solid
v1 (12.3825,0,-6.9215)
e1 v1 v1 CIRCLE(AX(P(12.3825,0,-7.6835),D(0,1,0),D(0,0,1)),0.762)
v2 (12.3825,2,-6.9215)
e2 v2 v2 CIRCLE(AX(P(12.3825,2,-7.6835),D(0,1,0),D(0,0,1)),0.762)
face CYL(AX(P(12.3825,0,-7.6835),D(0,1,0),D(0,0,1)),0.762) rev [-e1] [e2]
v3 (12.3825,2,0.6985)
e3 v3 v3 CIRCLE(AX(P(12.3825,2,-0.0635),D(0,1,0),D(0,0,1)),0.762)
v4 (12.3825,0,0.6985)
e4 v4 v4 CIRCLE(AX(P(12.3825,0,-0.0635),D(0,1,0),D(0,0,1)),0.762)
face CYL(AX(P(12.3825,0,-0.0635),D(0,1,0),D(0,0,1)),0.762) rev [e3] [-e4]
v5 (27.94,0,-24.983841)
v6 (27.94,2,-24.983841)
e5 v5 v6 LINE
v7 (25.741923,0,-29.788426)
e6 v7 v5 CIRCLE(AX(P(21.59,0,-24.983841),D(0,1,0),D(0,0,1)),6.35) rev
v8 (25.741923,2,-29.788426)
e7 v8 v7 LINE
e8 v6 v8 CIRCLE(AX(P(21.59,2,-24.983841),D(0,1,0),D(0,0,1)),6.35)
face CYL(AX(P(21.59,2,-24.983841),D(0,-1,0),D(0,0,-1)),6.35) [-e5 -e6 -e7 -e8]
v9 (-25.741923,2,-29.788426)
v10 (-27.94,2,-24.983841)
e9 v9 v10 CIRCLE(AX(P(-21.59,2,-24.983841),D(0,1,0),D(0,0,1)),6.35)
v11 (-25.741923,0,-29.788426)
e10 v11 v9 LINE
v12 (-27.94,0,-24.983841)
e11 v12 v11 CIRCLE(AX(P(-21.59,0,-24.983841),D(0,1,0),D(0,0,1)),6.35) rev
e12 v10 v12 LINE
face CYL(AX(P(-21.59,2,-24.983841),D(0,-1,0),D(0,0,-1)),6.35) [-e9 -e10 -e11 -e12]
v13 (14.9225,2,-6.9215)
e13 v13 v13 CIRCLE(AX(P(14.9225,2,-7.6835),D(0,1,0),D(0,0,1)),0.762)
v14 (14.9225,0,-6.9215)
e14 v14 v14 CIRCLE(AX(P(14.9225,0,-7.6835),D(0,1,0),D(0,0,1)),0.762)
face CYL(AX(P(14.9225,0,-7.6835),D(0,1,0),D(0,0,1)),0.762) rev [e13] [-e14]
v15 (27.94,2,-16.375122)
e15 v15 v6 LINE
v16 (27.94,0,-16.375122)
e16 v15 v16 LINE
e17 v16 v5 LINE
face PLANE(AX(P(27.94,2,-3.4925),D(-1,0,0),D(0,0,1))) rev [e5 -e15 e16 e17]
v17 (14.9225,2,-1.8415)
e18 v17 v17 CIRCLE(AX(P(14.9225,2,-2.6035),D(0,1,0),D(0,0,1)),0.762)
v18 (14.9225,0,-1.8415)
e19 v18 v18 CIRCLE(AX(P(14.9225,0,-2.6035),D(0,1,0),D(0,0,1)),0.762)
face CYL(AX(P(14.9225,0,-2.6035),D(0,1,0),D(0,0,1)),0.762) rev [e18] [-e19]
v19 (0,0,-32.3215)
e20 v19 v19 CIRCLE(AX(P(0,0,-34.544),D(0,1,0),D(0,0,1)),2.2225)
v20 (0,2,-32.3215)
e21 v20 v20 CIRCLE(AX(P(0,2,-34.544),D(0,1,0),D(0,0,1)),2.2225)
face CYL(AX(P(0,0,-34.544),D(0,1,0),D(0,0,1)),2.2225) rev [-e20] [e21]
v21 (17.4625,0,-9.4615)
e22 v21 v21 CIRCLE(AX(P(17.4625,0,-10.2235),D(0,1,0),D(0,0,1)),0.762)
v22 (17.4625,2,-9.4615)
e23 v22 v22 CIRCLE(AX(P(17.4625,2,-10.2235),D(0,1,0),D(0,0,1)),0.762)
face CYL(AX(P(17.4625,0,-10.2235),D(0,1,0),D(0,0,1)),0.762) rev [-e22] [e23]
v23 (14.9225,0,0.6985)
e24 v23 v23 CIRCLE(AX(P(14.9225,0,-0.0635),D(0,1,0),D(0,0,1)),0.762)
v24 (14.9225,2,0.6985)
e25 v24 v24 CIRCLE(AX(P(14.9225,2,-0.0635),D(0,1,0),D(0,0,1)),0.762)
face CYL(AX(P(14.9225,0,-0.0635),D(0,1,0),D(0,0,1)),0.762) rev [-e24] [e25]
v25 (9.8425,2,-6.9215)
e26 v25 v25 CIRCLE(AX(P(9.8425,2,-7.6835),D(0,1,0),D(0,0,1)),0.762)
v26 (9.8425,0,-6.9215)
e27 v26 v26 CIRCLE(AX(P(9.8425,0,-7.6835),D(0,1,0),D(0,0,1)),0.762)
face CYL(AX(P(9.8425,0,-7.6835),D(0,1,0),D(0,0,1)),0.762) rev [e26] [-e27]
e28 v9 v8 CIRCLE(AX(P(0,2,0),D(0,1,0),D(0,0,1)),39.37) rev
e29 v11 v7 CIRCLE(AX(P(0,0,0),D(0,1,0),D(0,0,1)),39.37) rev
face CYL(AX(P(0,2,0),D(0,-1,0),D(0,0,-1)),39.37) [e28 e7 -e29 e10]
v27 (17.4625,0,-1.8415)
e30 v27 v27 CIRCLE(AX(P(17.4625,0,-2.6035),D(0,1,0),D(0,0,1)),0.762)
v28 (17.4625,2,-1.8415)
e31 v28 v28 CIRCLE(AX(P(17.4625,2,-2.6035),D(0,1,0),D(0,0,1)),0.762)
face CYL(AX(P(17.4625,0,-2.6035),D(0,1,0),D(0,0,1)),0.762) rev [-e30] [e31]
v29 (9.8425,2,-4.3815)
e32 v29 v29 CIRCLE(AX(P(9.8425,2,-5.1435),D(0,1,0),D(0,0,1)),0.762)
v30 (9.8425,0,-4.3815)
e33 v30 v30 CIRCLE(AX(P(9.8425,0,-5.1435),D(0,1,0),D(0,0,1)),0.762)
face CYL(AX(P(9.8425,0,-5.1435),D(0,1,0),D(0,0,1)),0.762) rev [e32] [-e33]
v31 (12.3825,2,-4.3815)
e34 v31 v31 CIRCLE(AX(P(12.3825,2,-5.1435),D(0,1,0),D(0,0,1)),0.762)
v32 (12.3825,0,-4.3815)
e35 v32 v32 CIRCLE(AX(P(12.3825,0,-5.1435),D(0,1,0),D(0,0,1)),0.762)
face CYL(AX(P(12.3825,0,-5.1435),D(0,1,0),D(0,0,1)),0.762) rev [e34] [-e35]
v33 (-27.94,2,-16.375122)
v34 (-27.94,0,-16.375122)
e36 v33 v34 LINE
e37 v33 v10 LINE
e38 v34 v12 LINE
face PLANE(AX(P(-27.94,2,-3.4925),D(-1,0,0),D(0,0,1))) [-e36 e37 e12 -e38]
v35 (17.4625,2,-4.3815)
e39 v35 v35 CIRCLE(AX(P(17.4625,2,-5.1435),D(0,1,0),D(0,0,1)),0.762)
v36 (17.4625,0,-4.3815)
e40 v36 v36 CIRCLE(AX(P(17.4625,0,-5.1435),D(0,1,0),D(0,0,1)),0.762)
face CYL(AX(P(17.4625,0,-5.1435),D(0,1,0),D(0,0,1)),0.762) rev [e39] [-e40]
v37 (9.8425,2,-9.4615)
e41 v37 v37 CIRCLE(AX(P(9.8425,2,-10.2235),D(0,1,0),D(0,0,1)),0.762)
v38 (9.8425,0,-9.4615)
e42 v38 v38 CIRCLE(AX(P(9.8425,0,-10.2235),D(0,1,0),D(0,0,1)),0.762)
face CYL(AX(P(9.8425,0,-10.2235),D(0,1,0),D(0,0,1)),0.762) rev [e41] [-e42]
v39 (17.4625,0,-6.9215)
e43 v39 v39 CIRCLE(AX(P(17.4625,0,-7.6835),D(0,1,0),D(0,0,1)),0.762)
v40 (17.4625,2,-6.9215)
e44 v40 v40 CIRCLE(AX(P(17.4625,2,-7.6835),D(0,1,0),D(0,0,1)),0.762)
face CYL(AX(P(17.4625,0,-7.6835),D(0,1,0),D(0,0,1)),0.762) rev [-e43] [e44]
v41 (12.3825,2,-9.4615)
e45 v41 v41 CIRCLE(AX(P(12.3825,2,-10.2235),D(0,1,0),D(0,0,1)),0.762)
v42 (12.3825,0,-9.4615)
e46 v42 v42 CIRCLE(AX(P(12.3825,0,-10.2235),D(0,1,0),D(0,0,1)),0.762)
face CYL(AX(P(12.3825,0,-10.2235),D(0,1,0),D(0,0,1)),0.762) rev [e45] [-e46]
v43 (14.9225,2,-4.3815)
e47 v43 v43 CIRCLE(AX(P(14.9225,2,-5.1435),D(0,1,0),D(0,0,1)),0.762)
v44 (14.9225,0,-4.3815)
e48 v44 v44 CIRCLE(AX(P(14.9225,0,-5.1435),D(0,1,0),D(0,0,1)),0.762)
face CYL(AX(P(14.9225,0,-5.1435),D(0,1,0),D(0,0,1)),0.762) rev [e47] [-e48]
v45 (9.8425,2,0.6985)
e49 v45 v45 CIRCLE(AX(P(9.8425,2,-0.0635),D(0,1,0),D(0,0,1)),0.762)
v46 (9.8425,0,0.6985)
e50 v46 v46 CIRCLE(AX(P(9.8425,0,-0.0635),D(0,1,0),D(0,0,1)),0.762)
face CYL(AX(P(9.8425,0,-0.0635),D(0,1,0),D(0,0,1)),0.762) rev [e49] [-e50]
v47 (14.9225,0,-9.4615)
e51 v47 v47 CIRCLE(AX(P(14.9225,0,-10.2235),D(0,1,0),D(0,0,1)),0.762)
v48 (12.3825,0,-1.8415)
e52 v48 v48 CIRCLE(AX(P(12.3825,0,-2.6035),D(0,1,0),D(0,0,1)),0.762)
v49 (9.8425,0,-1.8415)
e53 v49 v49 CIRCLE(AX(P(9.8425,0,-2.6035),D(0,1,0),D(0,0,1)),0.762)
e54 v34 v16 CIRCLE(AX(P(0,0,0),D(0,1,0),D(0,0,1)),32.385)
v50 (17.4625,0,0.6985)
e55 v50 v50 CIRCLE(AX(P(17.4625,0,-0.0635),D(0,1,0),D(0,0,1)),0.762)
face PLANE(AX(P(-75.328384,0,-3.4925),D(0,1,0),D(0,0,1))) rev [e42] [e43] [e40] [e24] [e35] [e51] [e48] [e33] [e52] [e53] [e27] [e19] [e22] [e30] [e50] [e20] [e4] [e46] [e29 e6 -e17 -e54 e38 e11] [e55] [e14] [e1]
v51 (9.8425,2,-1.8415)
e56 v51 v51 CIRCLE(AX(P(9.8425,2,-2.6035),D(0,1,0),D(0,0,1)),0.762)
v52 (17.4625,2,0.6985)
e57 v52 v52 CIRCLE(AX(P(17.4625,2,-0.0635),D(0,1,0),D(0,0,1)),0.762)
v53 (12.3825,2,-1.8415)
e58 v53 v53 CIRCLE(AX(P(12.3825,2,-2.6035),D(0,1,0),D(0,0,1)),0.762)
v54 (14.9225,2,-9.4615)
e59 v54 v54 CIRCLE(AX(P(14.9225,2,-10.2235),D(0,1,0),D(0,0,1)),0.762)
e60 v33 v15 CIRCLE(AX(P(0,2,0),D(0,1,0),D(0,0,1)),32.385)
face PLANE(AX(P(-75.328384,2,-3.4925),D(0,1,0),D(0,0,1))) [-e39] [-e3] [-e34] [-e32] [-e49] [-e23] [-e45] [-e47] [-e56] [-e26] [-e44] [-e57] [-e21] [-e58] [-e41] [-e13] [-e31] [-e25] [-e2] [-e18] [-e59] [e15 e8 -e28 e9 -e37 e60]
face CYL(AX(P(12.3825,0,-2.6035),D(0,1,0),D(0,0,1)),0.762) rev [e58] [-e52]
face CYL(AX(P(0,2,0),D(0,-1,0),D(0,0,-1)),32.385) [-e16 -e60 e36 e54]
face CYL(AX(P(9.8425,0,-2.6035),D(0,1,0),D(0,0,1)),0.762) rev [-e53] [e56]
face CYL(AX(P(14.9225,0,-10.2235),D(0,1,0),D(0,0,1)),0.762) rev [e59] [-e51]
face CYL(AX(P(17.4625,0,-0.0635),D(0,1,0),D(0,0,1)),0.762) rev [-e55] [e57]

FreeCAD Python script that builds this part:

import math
import FreeCAD as App
import Part
import Sketcher
from FreeCAD import Vector
Q = App.Units.Quantity


def edges_at(feature, points):
    """Names of the edges that pass closest to the given points."""
    edges = feature.Shape.Edges
    near = lambda p: min(range(len(edges)), key=lambda i: edges[i].distToShape(Part.Vertex(*p))[0])
    return sorted({f"Edge{near(p) + 1}" for p in points})

doc = App.newDocument("Part")
params = doc.addObject("Spreadsheet::Sheet", "Params")
for row, (alias, value) in enumerate([
    ("sketch1_radius", "1.55 in"),
    ("sketch1_radius2", "1.275 in"),
    ("pad1_length", "2 mm"),
    ("fillet_radius", "0.25 in"),
    ("sketch2_diameter", "0.175 in"),
    ("sketch3_diameter", "0.06 in"),
], start=1):
    params.set(f"A{row}", alias)
    params.set(f"B{row}", "=" + value)
    params.setAlias(f"B{row}", alias)

body = doc.addObject("PartDesign::Body", "Body")

# Sketch on XZ plane
sketch1 = body.newObject("Sketcher::SketchObject", "Sketch")
sketch1.AttachmentSupport = (doc.getObject("XZ_Plane"), [""])
sketch1.MapMode = "FlatFace"
sketch1.addGeometry([
    Part.LineSegment(Vector(27.94, -16.375122, 0), Vector(27.94, -27.737219, 0)),
    Part.ArcOfCircle(Part.Circle(Vector(0, 0, 0), Vector(0, 0, 1), 39.37), math.radians(-135.208675), math.radians(-44.791325)),
    Part.LineSegment(Vector(-27.94, -27.737219, 0), Vector(-27.94, -16.375122, 0)),
    Part.ArcOfCircle(Part.Circle(Vector(0, 0, 0), Vector(0, 0, 1), 32.385), math.radians(-30.373786), math.radians(210.373786)),
], False)
sketch1.addConstraint([
    Sketcher.Constraint("Coincident", 0, 2, 1, 2),
    Sketcher.Constraint("Coincident", 1, 1, 2, 1),
    Sketcher.Constraint("Coincident", 2, 2, 3, 2),
    Sketcher.Constraint("Coincident", 3, 1, 0, 1),
    Sketcher.Constraint("Vertical", 0),
    Sketcher.Constraint("Vertical", 2),
    Sketcher.Constraint("Coincident", 1, 3, -1, 1),
    Sketcher.Constraint("Coincident", 3, 3, -1, 1),
    Sketcher.Constraint("Horizontal", 0, 2, 1, 1),
    Sketcher.Constraint("Radius", 1, Q("1.55 in")),
    Sketcher.Constraint("Radius", 3, Q("1.275 in")),
    Sketcher.Constraint("DistanceX", -1, 1, 0, 2, Q("1.1 in")),
])
sketch1.setExpression("Constraints[9]", "Params.sketch1_radius")
sketch1.setExpression("Constraints[10]", "Params.sketch1_radius2")
pad1 = body.newObject("PartDesign::Pad", "Pad")
pad1.Profile = sketch1
pad1.setExpression("Length", "Params.pad1_length")
pad1.Reversed = True
doc.recompute()

fillet = body.newObject("PartDesign::Fillet", "Fillet")
fillet.Base = (pad1, edges_at(pad1, [(-27.94, 1, -27.737), (27.94, 1, -27.737)]))
fillet.setExpression("Radius", "Params.fillet_radius")

# Sketch on XZ plane
sketch2 = body.newObject("Sketcher::SketchObject", "Sketch001")
sketch2.AttachmentSupport = (doc.getObject("XZ_Plane"), [""])
sketch2.MapMode = "FlatFace"
sketch2.AttachmentOffset = App.Placement(Vector(0, 0, -2), App.Rotation())
sketch2.addGeometry(Part.Circle(Vector(0, -34.544, 0), Vector(0, 0, 1), 2.2225), False)
sketch2.addConstraint([
    Sketcher.Constraint("PointOnObject", 0, 3, -2),
    Sketcher.Constraint("Diameter", 0, Q("0.175 in")),
    Sketcher.Constraint("DistanceY", 0, 3, -1, 1, Q("1.36 in")),
])
sketch2.setExpression("Constraints[1]", "Params.sketch2_diameter")
pocket1 = body.newObject("PartDesign::Pocket", "Pocket")
pocket1.Profile = sketch2
pocket1.Type = "ThroughAll"
pocket1.Reversed = True

# Sketch on XZ plane
sketch3 = body.newObject("Sketcher::SketchObject", "Sketch002")
sketch3.AttachmentSupport = (doc.getObject("XZ_Plane"), [""])
sketch3.MapMode = "FlatFace"
sketch3.AttachmentOffset = App.Placement(Vector(0, 0, -2), App.Rotation())
sketch3.addGeometry([
    Part.Circle(Vector(9.8425, -10.2235, 0), Vector(0, 0, 1), 0.762),  # 0
    Part.Circle(Vector(12.3825, -10.2235, 0), Vector(0, 0, 1), 0.762),  # 1
    Part.Circle(Vector(14.9225, -10.2235, 0), Vector(0, 0, 1), 0.762),  # 2
    Part.Circle(Vector(17.4625, -10.2235, 0), Vector(0, 0, 1), 0.762),  # 3
    Part.Circle(Vector(9.8425, -7.6835, 0), Vector(0, 0, 1), 0.762),  # 4
    Part.Circle(Vector(12.3825, -7.6835, 0), Vector(0, 0, 1), 0.762),  # 5
    Part.Circle(Vector(14.9225, -7.6835, 0), Vector(0, 0, 1), 0.762),  # 6
    Part.Circle(Vector(17.4625, -7.6835, 0), Vector(0, 0, 1), 0.762),  # 7
    Part.Circle(Vector(9.8425, -5.1435, 0), Vector(0, 0, 1), 0.762),  # 8
    Part.Circle(Vector(12.3825, -5.1435, 0), Vector(0, 0, 1), 0.762),  # 9
    Part.Circle(Vector(14.9225, -5.1435, 0), Vector(0, 0, 1), 0.762),  # 10
    Part.Circle(Vector(17.4625, -5.1435, 0), Vector(0, 0, 1), 0.762),  # 11
    Part.Circle(Vector(9.8425, -2.6035, 0), Vector(0, 0, 1), 0.762),  # 12
    Part.Circle(Vector(12.3825, -2.6035, 0), Vector(0, 0, 1), 0.762),  # 13
    Part.Circle(Vector(14.9225, -2.6035, 0), Vector(0, 0, 1), 0.762),  # 14
    Part.Circle(Vector(17.4625, -2.6035, 0), Vector(0, 0, 1), 0.762),  # 15
    Part.Circle(Vector(9.8425, -0.0635, 0), Vector(0, 0, 1), 0.762),  # 16
    Part.Circle(Vector(12.3825, -0.0635, 0), Vector(0, 0, 1), 0.762),  # 17
    Part.Circle(Vector(14.9225, -0.0635, 0), Vector(0, 0, 1), 0.762),  # 18
    Part.Circle(Vector(17.4625, -0.0635, 0), Vector(0, 0, 1), 0.762),  # 19
], False)
sketch3.addConstraint([
    Sketcher.Constraint("Equal", 0, 1),
    Sketcher.Constraint("Equal", 1, 2),
    Sketcher.Constraint("Equal", 2, 3),
    Sketcher.Constraint("Equal", 3, 4),
    Sketcher.Constraint("Equal", 4, 5),
    Sketcher.Constraint("Equal", 5, 6),
    Sketcher.Constraint("Equal", 6, 7),
    Sketcher.Constraint("Equal", 7, 8),
    Sketcher.Constraint("Equal", 8, 9),
    Sketcher.Constraint("Equal", 9, 10),
    Sketcher.Constraint("Equal", 10, 11),
    Sketcher.Constraint("Equal", 11, 12),
    Sketcher.Constraint("Equal", 12, 13),
    Sketcher.Constraint("Equal", 13, 14),
    Sketcher.Constraint("Equal", 14, 15),
    Sketcher.Constraint("Equal", 15, 16),
    Sketcher.Constraint("Equal", 16, 17),
    Sketcher.Constraint("Equal", 17, 18),
    Sketcher.Constraint("Equal", 18, 19),
    Sketcher.Constraint("Horizontal", 0, 3, 1, 3),
    Sketcher.Constraint("Horizontal", 1, 3, 2, 3),
    Sketcher.Constraint("Horizontal", 2, 3, 3, 3),
    Sketcher.Constraint("Horizontal", 4, 3, 5, 3),
    Sketcher.Constraint("Horizontal", 5, 3, 6, 3),
    Sketcher.Constraint("Horizontal", 6, 3, 7, 3),
    Sketcher.Constraint("Horizontal", 8, 3, 9, 3),
    Sketcher.Constraint("Horizontal", 9, 3, 10, 3),
    Sketcher.Constraint("Horizontal", 10, 3, 11, 3),
    Sketcher.Constraint("Horizontal", 12, 3, 13, 3),
    Sketcher.Constraint("Horizontal", 13, 3, 14, 3),
    Sketcher.Constraint("Horizontal", 14, 3, 15, 3),
    Sketcher.Constraint("Horizontal", 16, 3, 17, 3),
    Sketcher.Constraint("Horizontal", 17, 3, 18, 3),
    Sketcher.Constraint("Horizontal", 18, 3, 19, 3),
    Sketcher.Constraint("Vertical", 0, 3, 4, 3),
    Sketcher.Constraint("Vertical", 1, 3, 5, 3),
    Sketcher.Constraint("Vertical", 2, 3, 6, 3),
    Sketcher.Constraint("Vertical", 3, 3, 7, 3),
    Sketcher.Constraint("Vertical", 4, 3, 8, 3),
    Sketcher.Constraint("Vertical", 5, 3, 9, 3),
    Sketcher.Constraint("Vertical", 6, 3, 10, 3),
    Sketcher.Constraint("Vertical", 7, 3, 11, 3),
    Sketcher.Constraint("Vertical", 8, 3, 12, 3),
    Sketcher.Constraint("Vertical", 9, 3, 13, 3),
    Sketcher.Constraint("Vertical", 10, 3, 14, 3),
    Sketcher.Constraint("Vertical", 11, 3, 15, 3),
    Sketcher.Constraint("Vertical", 12, 3, 16, 3),
    Sketcher.Constraint("Vertical", 13, 3, 17, 3),
    Sketcher.Constraint("Vertical", 14, 3, 18, 3),
    Sketcher.Constraint("Vertical", 15, 3, 19, 3),
    Sketcher.Constraint("Diameter", 0, Q("0.06 in")),
    Sketcher.Constraint("DistanceX", 0, 3, 1, 3, Q("0.1 in")),
    Sketcher.Constraint("DistanceX", 1, 3, 2, 3, Q("0.1 in")),
    Sketcher.Constraint("DistanceX", 2, 3, 3, 3, Q("0.1 in")),
    Sketcher.Constraint("DistanceY", 0, 3, 4, 3, Q("0.1 in")),
    Sketcher.Constraint("DistanceY", 4, 3, 8, 3, Q("0.1 in")),
    Sketcher.Constraint("DistanceY", 8, 3, 12, 3, Q("0.1 in")),
    Sketcher.Constraint("DistanceY", 12, 3, 16, 3, Q("0.1 in")),
    Sketcher.Constraint("DistanceX", -1, 1, 3, 3, Q("0.6875 in")),
    Sketcher.Constraint("DistanceY", 0, 3, -1, 1, Q("0.4025 in")),
])
sketch3.setExpression("Constraints[50]", "Params.sketch3_diameter")
pocket2 = body.newObject("PartDesign::Pocket", "Pocket001")
pocket2.Profile = sketch3
pocket2.Type = "ThroughAll"
pocket2.Reversed = True

doc.recompute()
